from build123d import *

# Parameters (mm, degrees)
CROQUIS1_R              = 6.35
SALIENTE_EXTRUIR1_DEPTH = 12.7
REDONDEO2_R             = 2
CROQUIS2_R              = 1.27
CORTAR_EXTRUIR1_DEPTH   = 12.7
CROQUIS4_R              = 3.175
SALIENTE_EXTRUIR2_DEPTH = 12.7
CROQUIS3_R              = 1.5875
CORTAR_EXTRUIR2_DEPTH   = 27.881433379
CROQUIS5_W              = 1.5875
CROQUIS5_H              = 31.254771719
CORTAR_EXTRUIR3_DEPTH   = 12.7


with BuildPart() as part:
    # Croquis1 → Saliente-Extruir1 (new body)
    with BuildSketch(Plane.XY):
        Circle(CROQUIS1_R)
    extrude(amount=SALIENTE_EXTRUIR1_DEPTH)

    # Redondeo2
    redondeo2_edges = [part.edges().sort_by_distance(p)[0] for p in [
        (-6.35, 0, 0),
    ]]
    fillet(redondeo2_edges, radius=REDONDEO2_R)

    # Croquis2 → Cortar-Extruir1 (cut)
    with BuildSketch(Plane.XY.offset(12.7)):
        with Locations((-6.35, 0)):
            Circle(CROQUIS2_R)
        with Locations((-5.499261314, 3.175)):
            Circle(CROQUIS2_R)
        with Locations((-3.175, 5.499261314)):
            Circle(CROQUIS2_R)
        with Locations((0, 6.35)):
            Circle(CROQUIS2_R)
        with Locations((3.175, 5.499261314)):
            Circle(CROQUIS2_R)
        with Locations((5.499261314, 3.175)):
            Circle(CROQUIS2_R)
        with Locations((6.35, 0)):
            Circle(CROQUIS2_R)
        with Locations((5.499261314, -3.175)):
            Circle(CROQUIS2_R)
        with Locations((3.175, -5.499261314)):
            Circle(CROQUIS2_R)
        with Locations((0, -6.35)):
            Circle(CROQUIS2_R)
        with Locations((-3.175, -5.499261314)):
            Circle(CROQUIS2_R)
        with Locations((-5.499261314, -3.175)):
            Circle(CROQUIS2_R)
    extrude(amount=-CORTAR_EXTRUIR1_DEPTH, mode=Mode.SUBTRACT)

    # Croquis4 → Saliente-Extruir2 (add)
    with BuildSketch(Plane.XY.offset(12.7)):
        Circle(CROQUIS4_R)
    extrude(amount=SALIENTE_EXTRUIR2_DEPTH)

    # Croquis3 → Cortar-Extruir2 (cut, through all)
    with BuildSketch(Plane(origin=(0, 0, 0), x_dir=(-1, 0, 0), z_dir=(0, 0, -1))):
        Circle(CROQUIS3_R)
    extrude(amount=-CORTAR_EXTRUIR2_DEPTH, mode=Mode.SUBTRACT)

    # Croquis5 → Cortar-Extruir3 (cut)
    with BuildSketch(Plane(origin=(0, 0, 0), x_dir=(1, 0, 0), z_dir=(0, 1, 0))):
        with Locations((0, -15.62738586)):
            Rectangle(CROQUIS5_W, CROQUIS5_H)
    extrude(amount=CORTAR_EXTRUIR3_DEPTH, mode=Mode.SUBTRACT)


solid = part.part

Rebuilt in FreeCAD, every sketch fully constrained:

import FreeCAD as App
import Part
import Sketcher
Q = App.Units.Quantity


def edges_at(feature, points):
    """Names of the edges that pass closest to the given points."""
    edges = feature.Shape.Edges
    near = lambda p: min(range(len(edges)), key=lambda i: edges[i].distToShape(Part.Vertex(*p))[0])
    return sorted({f"Edge{near(p) + 1}" for p in points})


def add_polygon(sketch, points):
    """Adds a closed chain of lines whose ends are joined by coincident constraints."""
    first, n = sketch.GeometryCount, len(points)
    for a, b in zip(points, points[1:] + points[:1]):
        sketch.addGeometry(Part.LineSegment(App.Vector(*a, 0), App.Vector(*b, 0)), False)
    for i in range(n):
        sketch.addConstraint(Sketcher.Constraint("Coincident", first + i, 2, first + (i + 1) % n, 1))

doc = App.newDocument("Part")
body = doc.addObject("PartDesign::Body", "Body")

# Sketch on XY plane
sketch1 = doc.addObject("Sketcher::SketchObject", "Sketch")
body.addObject(sketch1)
sketch1.AttachmentSupport = (doc.XY_Plane, [""])
sketch1.MapMode = "FlatFace"
sketch1.addGeometry(Part.Circle(App.Vector(0, 0, 0), App.Vector(0, 0, 1), 6), False)
sketch1.addConstraint([
    Sketcher.Constraint("Coincident", 0, 3, -1, 1),
    Sketcher.Constraint("Diameter", 0, Q("0.5 in")),
])
pad1 = doc.addObject("PartDesign::Pad", "Pad")
body.addObject(pad1)
pad1.Profile = sketch1
pad1.Length = Q("0.5 in")
doc.recompute()

fillet = doc.addObject("PartDesign::Fillet", "Fillet")
body.addObject(fillet)
fillet.Base = (pad1, edges_at(pad1, [(-6.35, 0, 0)]))
fillet.Radius = 2

# Sketch on XY plane
sketch2 = doc.addObject("Sketcher::SketchObject", "Sketch001")
body.addObject(sketch2)
sketch2.AttachmentSupport = (doc.XY_Plane, [""])
sketch2.MapMode = "FlatFace"
sketch2.AttachmentOffset = App.Placement(App.Vector(0, 0, 0.5 * 25.4), App.Rotation())
sketch2.addGeometry([
    Part.Circle(App.Vector(-6.3, 0, 0), App.Vector(0, 0, 1), 1.3),  # 0
    Part.Circle(App.Vector(-5.5, 3.2, 0), App.Vector(0, 0, 1), 1.3),  # 1
    Part.Circle(App.Vector(-3.2, 5.5, 0), App.Vector(0, 0, 1), 1.3),  # 2
    Part.Circle(App.Vector(0, 6.3, 0), App.Vector(0, 0, 1), 1.3),  # 3
    Part.Circle(App.Vector(3.2, 5.5, 0), App.Vector(0, 0, 1), 1.3),  # 4
    Part.Circle(App.Vector(5.5, 3.2, 0), App.Vector(0, 0, 1), 1.3),  # 5
    Part.Circle(App.Vector(6.3, 0, 0), App.Vector(0, 0, 1), 1.3),  # 6
    Part.Circle(App.Vector(5.5, -3.2, 0), App.Vector(0, 0, 1), 1.3),  # 7
    Part.Circle(App.Vector(3.2, -5.5, 0), App.Vector(0, 0, 1), 1.3),  # 8
    Part.Circle(App.Vector(0, -6.3, 0), App.Vector(0, 0, 1), 1.3),  # 9
    Part.Circle(App.Vector(-3.2, -5.5, 0), App.Vector(0, 0, 1), 1.3),  # 10
    Part.Circle(App.Vector(-5.5, -3.2, 0), App.Vector(0, 0, 1), 1.3),  # 11
], False)
sketch2.addConstraint([
    Sketcher.Constraint("Equal", 0, 1),
    Sketcher.Constraint("Equal", 1, 2),
    Sketcher.Constraint("Equal", 2, 3),
    Sketcher.Constraint("Equal", 3, 4),
    Sketcher.Constraint("Equal", 4, 5),
    Sketcher.Constraint("Equal", 5, 6),
    Sketcher.Constraint("Equal", 6, 7),
    Sketcher.Constraint("Equal", 7, 8),
    Sketcher.Constraint("Equal", 8, 9),
    Sketcher.Constraint("Equal", 9, 10),
    Sketcher.Constraint("Equal", 10, 11),
    Sketcher.Constraint("Symmetric", 0, 3, 6, 3, -1, 1),
    Sketcher.Constraint("Symmetric", 1, 3, 7, 3, -1, 1),
    Sketcher.Constraint("Symmetric", 2, 3, 8, 3, -1, 1),
    Sketcher.Constraint("Symmetric", 3, 3, 9, 3, -1, 1),
    Sketcher.Constraint("Symmetric", 4, 3, 10, 3, -1, 1),
    Sketcher.Constraint("Symmetric", 5, 3, 11, 3, -1, 1),
    Sketcher.Constraint("Symmetric", 2, 3, 4, 3, -2),
    Sketcher.Constraint("Symmetric", 1, 3, 5, 3, -2),
    Sketcher.Constraint("PointOnObject", 0, 3, -1),
    Sketcher.Constraint("PointOnObject", 3, 3, -2),
    Sketcher.Constraint("Diameter", 0, Q("0.1 in")),
    Sketcher.Constraint("DistanceX", 0, 3, -1, 1, Q("0.25 in")),
    Sketcher.Constraint("DistanceY", -1, 1, 3, 3, Q("0.25 in")),
    Sketcher.Constraint("DistanceX", 2, 3, 4, 3, Q("0.25 in")),
    Sketcher.Constraint("DistanceY", 7, 3, 5, 3, Q("0.25 in")),
    Sketcher.Constraint("DistanceX", 1, 3, -1, 1, Q("5.499261 mm")),
    Sketcher.Constraint("DistanceY", -1, 1, 2, 3, Q("5.499261 mm")),
])
pocket1 = doc.addObject("PartDesign::Pocket", "Pocket")
body.addObject(pocket1)
pocket1.Profile = sketch2
pocket1.Length = Q("0.5 in")

# Sketch on XY plane
sketch3 = doc.addObject("Sketcher::SketchObject", "Sketch002")
body.addObject(sketch3)
sketch3.AttachmentSupport = (doc.XY_Plane, [""])
sketch3.MapMode = "FlatFace"
sketch3.AttachmentOffset = App.Placement(App.Vector(0, 0, 0.5 * 25.4), App.Rotation())
sketch3.addGeometry(Part.Circle(App.Vector(0, 0, 0), App.Vector(0, 0, 1), 3.2), False)
sketch3.addConstraint([
    Sketcher.Constraint("Coincident", 0, 3, -1, 1),
    Sketcher.Constraint("Diameter", 0, Q("0.25 in")),
])
pad2 = doc.addObject("PartDesign::Pad", "Pad001")
body.addObject(pad2)
pad2.Profile = sketch3
pad2.Length = Q("0.5 in")

# Sketch on XY plane
sketch4 = doc.addObject("Sketcher::SketchObject", "Sketch003")
body.addObject(sketch4)
sketch4.AttachmentSupport = (doc.XY_Plane, [""])
sketch4.MapMode = "FlatFace"
sketch4.addGeometry(Part.Circle(App.Vector(0, 0, 0), App.Vector(0, 0, 1), 1.6), False)
sketch4.addConstraint([
    Sketcher.Constraint("Coincident", 0, 3, -1, 1),
    Sketcher.Constraint("Diameter", 0, Q("0.125 in")),
])
pocket2 = doc.addObject("PartDesign::Pocket", "Pocket001")
body.addObject(pocket2)
pocket2.Profile = sketch4
pocket2.Type = "ThroughAll"
pocket2.Reversed = True

# Sketch on XZ plane
sketch5 = doc.addObject("Sketcher::SketchObject", "Sketch004")
body.addObject(sketch5)
sketch5.AttachmentSupport = (doc.XZ_Plane, [""])
sketch5.MapMode = "FlatFace"
add_polygon(sketch5, [(-0.8, 0), (-0.8, 31.3), (0.8, 31.3), (0.8, 0)])  # lines 0-3
sketch5.addConstraint([
    Sketcher.Constraint("Vertical", 0),
    Sketcher.Constraint("Horizontal", 1),
    Sketcher.Constraint("Vertical", 2),
    Sketcher.Constraint("Horizontal", 3),
    Sketcher.Constraint("Symmetric", 2, 2, 3, 2, -1, 1),
    Sketcher.Constraint("DistanceX", 1, 1, 1, 2, Q("0.0625 in")),
    Sketcher.Constraint("DistanceY", 0, 1, 0, 2, Q("31.254772 mm")),
])
pocket3 = doc.addObject("PartDesign::Pocket", "Pocket002")
body.addObject(pocket3)
pocket3.Profile = sketch5
pocket3.Length = Q("0.5 in")

doc.recompute()
